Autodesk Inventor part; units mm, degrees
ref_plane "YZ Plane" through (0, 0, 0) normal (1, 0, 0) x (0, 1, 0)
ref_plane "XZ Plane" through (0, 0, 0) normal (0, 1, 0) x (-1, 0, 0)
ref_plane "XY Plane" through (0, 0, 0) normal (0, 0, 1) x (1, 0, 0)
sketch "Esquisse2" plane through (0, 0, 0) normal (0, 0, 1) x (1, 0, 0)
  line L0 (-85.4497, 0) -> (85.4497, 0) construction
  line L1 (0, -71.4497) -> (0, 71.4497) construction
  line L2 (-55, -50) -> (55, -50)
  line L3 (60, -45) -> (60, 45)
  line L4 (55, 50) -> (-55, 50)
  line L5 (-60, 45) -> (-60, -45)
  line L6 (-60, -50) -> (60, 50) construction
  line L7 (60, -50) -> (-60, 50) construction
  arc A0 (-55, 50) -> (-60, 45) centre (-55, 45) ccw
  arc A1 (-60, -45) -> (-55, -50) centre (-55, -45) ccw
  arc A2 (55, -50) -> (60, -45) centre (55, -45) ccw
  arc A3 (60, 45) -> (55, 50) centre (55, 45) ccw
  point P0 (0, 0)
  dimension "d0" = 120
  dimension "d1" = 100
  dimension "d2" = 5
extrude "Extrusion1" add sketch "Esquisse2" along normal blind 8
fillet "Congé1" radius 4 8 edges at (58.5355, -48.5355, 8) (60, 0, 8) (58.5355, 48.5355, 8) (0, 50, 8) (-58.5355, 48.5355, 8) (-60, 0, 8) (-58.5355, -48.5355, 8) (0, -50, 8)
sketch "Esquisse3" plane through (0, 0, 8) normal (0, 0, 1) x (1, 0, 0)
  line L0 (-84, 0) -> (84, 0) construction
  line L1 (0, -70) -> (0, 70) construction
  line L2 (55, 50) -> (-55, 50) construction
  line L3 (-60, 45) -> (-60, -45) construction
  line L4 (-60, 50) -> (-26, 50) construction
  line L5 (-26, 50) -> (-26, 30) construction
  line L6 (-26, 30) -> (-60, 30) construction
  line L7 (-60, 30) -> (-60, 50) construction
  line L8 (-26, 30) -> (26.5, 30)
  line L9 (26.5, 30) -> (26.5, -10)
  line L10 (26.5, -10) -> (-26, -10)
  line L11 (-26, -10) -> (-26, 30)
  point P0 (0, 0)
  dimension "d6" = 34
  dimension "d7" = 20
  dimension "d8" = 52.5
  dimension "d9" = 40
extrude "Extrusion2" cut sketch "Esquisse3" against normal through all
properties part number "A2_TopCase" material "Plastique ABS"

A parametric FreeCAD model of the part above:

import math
import FreeCAD as App
import Part
import Sketcher


def edges_at(feature, points):
    """Names of the edges that pass closest to the given points."""
    edges = feature.Shape.Edges
    near = lambda p: min(range(len(edges)), key=lambda i: edges[i].distToShape(Part.Vertex(*p))[0])
    return sorted({f"Edge{near(p) + 1}" for p in points})


def add_polygon(sketch, points):
    """Adds a closed chain of lines whose ends are joined by coincident constraints."""
    first, n = sketch.GeometryCount, len(points)
    for a, b in zip(points, points[1:] + points[:1]):
        sketch.addGeometry(Part.LineSegment(App.Vector(*a, 0), App.Vector(*b, 0)), False)
    for i in range(n):
        sketch.addConstraint(Sketcher.Constraint("Coincident", first + i, 2, first + (i + 1) % n, 1))

doc = App.newDocument("Part")
params = doc.addObject("Spreadsheet::Sheet", "Params")
for row, (alias, value) in enumerate([
    ("sketch1_radius", "5 mm"),
    ("sketch1_width", "110 mm"),
    ("pad1_length", "8 mm"),
    ("fillet_radius", "4 mm"),
    ("sketch2_height", "40 mm"),
    ("sketch2_width", "52.5 mm"),
], start=1):
    params.set(f"A{row}", alias)
    params.set(f"B{row}", "=" + value)
    params.setAlias(f"B{row}", alias)

body = doc.addObject("PartDesign::Body", "Body")

sketch1 = body.newObject("Sketcher::SketchObject", "Sketch")
sketch1.AttachmentSupport = (doc.getObject("XY_Plane"), [""])
sketch1.MapMode = "FlatFace"
sketch1.addGeometry([
    Part.ArcOfCircle(Part.Circle(App.Vector(-55, -45, 0), App.Vector(0, 0, 1), 5), math.radians(180), math.radians(270)),
    Part.LineSegment(App.Vector(-55, -50, 0), App.Vector(55, -50, 0)),
    Part.ArcOfCircle(Part.Circle(App.Vector(55, -45, 0), App.Vector(0, 0, 1), 5), math.radians(-90), math.radians(0)),
    Part.LineSegment(App.Vector(60, -45, 0), App.Vector(60, 45, 0)),
    Part.ArcOfCircle(Part.Circle(App.Vector(55, 45, 0), App.Vector(0, 0, 1), 5), math.radians(0), math.radians(90)),
    Part.LineSegment(App.Vector(55, 50, 0), App.Vector(-55, 50, 0)),
    Part.ArcOfCircle(Part.Circle(App.Vector(-55, 45, 0), App.Vector(0, 0, 1), 5), math.radians(90), math.radians(180)),
    Part.LineSegment(App.Vector(-60, 45, 0), App.Vector(-60, -45, 0)),
], False)
sketch1.addConstraint([
    Sketcher.Constraint("Tangent", 0, 2, 1, 1),
    Sketcher.Constraint("Tangent", 1, 2, 2, 1),
    Sketcher.Constraint("Tangent", 2, 2, 3, 1),
    Sketcher.Constraint("Tangent", 3, 2, 4, 1),
    Sketcher.Constraint("Tangent", 4, 2, 5, 1),
    Sketcher.Constraint("Tangent", 5, 2, 6, 1),
    Sketcher.Constraint("Tangent", 6, 2, 7, 1),
    Sketcher.Constraint("Tangent", 7, 2, 0, 1),
    Sketcher.Constraint("Horizontal", 1),
    Sketcher.Constraint("Vertical", 3),
    Sketcher.Constraint("Horizontal", 5),
    Sketcher.Constraint("Vertical", 7),
    Sketcher.Constraint("Equal", 0, 2),
    Sketcher.Constraint("Equal", 2, 4),
    Sketcher.Constraint("Equal", 4, 6),
    Sketcher.Constraint("Symmetric", 0, 3, 4, 3, -1, 1),
    Sketcher.Constraint("Radius", 0, 5.0),
    Sketcher.Constraint("DistanceY", 1, 2, 4, 2, 100.0),
    Sketcher.Constraint("DistanceX", 1, 1, 1, 2, 110.0),
])
sketch1.setExpression("Constraints[16]", "Params.sketch1_radius")
sketch1.setExpression("Constraints[18]", "Params.sketch1_width")
pad1 = body.newObject("PartDesign::Pad", "Pad")
pad1.Profile = sketch1
pad1.setExpression("Length", "Params.pad1_length")
doc.recompute()

fillet = body.newObject("PartDesign::Fillet", "Fillet")
fillet.Base = (pad1, edges_at(pad1, [
    (58.535, -48.535, 8),
    (60, 0, 8),
    (58.535, 48.535, 8),
    (0, 50, 8),
    (-58.535, 48.535, 8),
    (-60, 0, 8),
    (-58.535, -48.535, 8),
    (0, -50, 8),
]))
fillet.setExpression("Radius", "Params.fillet_radius")

sketch2 = body.newObject("Sketcher::SketchObject", "Sketch001")
sketch2.AttachmentSupport = (doc.getObject("XY_Plane"), [""])
sketch2.MapMode = "FlatFace"
sketch2.AttachmentOffset = App.Placement(App.Vector(0, 0, 8), App.Rotation())
add_polygon(sketch2, [(26, 30), (-26, 30), (-26, -10), (26, -10)])
sketch2.addConstraint([
    Sketcher.Constraint("Horizontal", 0),
    Sketcher.Constraint("Vertical", 1),
    Sketcher.Constraint("Horizontal", 2),
    Sketcher.Constraint("Vertical", 3),
    Sketcher.Constraint("DistanceY", 1, 2, 1, 1, 40.0),
    Sketcher.Constraint("DistanceX", 0, 2, 0, 1, 52.5),
    Sketcher.Constraint("DistanceX", 0, 2, -1, 1, 26.0),
    Sketcher.Constraint("DistanceY", -1, 1, 0, 2, 30.0),
])
sketch2.setExpression("Constraints[8]", "Params.sketch2_height")
sketch2.setExpression("Constraints[9]", "Params.sketch2_width")
pocket1 = body.newObject("PartDesign::Pocket", "Pocket")
pocket1.Profile = sketch2
pocket1.Type = "ThroughAll"

doc.recompute()
